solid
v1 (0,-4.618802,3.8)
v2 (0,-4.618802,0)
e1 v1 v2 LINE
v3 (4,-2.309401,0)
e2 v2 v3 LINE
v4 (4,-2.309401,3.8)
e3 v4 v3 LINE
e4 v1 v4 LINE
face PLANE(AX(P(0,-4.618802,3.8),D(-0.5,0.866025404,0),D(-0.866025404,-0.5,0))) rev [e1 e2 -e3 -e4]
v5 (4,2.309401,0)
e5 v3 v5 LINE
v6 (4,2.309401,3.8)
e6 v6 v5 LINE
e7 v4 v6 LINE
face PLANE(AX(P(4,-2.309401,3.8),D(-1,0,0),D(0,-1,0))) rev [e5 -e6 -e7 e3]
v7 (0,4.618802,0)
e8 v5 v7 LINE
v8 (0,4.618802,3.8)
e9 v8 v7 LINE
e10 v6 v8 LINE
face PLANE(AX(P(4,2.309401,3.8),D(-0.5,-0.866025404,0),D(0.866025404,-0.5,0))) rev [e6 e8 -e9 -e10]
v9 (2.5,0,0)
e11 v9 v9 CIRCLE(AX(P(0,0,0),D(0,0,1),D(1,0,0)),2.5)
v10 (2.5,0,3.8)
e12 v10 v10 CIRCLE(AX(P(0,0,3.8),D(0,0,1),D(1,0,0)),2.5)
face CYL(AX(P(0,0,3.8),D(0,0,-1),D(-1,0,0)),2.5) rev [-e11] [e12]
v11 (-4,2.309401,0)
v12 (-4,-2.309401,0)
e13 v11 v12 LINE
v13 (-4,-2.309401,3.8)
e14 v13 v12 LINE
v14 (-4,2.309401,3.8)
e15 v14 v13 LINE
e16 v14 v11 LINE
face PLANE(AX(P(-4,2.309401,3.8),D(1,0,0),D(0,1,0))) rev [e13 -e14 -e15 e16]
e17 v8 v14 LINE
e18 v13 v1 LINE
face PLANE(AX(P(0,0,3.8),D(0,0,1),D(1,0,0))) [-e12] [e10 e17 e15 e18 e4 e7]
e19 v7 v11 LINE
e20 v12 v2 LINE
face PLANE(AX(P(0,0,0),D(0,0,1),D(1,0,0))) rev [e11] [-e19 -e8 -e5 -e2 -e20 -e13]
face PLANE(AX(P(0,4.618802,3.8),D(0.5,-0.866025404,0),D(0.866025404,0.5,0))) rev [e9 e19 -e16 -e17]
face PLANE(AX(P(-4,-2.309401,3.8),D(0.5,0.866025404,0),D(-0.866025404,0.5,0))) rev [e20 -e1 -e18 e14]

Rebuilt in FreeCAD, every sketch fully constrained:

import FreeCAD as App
import Part
import Sketcher

V = App.Vector
Q = App.Units.Quantity


def add_polygon(sketch, points):
    """Adds a closed chain of lines whose ends are joined by coincident constraints."""
    first, n = sketch.GeometryCount, len(points)
    for a, b in zip(points, points[1:] + points[:1]):
        sketch.addGeometry(Part.LineSegment(App.Vector(*a, 0), App.Vector(*b, 0)), False)
    for i in range(n):
        sketch.addConstraint(Sketcher.Constraint("Coincident", first + i, 2, first + (i + 1) % n, 1))

doc = App.newDocument("Part")
body = doc.addObject("PartDesign::Body", "Body")

# Sketch on XY plane
sketch1 = doc.addObject("Sketcher::SketchObject", "Sketch")
body.addObject(sketch1)
sketch1.AttachmentSupport = (doc.XY_Plane, [""])
sketch1.MapMode = "FlatFace"
add_polygon(sketch1, [(0, 4.6), (-4, 2.3), (-4, -2.3), (0, -4.6), (4, -2.3), (4, 2.3)])  # lines 0-5
sketch1.addGeometry(Part.Circle(V(0, 0, 0), V(0, 0, 1), 2.5), False)  # 6
sketch1.addConstraint(Sketcher.Constraint("Vertical", 1))
sketch1.addConstraint(Sketcher.Constraint("Vertical", 4))
sketch1.addConstraint(Sketcher.Constraint("Coincident", 6, 3, -1, 1))
sketch1.addConstraint(Sketcher.Constraint("Symmetric", 0, 2, 3, 2, -1, 1))
sketch1.addConstraint(Sketcher.Constraint("Symmetric", 2, 2, 5, 2, -1, 1))
sketch1.addConstraint(Sketcher.Constraint("PointOnObject", 2, 2, -2))
sketch1.addConstraint(Sketcher.Constraint("Parallel", 2, 5))
sketch1.addConstraint(Sketcher.Constraint("Horizontal", 1, 2, 3, 2))
sketch1.addConstraint(Sketcher.Constraint("Diameter", 6, 5.0))
sketch1.addConstraint(Sketcher.Constraint("Angle", 0, Q("-150 deg")))
sketch1.addConstraint(Sketcher.Constraint("DistanceX", 0, 2, -1, 1, 4.0))
sketch1.addConstraint(Sketcher.Constraint("DistanceY", -1, 1, 0, 2, 2.309401))
pad1 = doc.addObject("PartDesign::Pad", "Pad")
body.addObject(pad1)
pad1.Profile = sketch1
pad1.Length = 3.8

doc.recompute()
